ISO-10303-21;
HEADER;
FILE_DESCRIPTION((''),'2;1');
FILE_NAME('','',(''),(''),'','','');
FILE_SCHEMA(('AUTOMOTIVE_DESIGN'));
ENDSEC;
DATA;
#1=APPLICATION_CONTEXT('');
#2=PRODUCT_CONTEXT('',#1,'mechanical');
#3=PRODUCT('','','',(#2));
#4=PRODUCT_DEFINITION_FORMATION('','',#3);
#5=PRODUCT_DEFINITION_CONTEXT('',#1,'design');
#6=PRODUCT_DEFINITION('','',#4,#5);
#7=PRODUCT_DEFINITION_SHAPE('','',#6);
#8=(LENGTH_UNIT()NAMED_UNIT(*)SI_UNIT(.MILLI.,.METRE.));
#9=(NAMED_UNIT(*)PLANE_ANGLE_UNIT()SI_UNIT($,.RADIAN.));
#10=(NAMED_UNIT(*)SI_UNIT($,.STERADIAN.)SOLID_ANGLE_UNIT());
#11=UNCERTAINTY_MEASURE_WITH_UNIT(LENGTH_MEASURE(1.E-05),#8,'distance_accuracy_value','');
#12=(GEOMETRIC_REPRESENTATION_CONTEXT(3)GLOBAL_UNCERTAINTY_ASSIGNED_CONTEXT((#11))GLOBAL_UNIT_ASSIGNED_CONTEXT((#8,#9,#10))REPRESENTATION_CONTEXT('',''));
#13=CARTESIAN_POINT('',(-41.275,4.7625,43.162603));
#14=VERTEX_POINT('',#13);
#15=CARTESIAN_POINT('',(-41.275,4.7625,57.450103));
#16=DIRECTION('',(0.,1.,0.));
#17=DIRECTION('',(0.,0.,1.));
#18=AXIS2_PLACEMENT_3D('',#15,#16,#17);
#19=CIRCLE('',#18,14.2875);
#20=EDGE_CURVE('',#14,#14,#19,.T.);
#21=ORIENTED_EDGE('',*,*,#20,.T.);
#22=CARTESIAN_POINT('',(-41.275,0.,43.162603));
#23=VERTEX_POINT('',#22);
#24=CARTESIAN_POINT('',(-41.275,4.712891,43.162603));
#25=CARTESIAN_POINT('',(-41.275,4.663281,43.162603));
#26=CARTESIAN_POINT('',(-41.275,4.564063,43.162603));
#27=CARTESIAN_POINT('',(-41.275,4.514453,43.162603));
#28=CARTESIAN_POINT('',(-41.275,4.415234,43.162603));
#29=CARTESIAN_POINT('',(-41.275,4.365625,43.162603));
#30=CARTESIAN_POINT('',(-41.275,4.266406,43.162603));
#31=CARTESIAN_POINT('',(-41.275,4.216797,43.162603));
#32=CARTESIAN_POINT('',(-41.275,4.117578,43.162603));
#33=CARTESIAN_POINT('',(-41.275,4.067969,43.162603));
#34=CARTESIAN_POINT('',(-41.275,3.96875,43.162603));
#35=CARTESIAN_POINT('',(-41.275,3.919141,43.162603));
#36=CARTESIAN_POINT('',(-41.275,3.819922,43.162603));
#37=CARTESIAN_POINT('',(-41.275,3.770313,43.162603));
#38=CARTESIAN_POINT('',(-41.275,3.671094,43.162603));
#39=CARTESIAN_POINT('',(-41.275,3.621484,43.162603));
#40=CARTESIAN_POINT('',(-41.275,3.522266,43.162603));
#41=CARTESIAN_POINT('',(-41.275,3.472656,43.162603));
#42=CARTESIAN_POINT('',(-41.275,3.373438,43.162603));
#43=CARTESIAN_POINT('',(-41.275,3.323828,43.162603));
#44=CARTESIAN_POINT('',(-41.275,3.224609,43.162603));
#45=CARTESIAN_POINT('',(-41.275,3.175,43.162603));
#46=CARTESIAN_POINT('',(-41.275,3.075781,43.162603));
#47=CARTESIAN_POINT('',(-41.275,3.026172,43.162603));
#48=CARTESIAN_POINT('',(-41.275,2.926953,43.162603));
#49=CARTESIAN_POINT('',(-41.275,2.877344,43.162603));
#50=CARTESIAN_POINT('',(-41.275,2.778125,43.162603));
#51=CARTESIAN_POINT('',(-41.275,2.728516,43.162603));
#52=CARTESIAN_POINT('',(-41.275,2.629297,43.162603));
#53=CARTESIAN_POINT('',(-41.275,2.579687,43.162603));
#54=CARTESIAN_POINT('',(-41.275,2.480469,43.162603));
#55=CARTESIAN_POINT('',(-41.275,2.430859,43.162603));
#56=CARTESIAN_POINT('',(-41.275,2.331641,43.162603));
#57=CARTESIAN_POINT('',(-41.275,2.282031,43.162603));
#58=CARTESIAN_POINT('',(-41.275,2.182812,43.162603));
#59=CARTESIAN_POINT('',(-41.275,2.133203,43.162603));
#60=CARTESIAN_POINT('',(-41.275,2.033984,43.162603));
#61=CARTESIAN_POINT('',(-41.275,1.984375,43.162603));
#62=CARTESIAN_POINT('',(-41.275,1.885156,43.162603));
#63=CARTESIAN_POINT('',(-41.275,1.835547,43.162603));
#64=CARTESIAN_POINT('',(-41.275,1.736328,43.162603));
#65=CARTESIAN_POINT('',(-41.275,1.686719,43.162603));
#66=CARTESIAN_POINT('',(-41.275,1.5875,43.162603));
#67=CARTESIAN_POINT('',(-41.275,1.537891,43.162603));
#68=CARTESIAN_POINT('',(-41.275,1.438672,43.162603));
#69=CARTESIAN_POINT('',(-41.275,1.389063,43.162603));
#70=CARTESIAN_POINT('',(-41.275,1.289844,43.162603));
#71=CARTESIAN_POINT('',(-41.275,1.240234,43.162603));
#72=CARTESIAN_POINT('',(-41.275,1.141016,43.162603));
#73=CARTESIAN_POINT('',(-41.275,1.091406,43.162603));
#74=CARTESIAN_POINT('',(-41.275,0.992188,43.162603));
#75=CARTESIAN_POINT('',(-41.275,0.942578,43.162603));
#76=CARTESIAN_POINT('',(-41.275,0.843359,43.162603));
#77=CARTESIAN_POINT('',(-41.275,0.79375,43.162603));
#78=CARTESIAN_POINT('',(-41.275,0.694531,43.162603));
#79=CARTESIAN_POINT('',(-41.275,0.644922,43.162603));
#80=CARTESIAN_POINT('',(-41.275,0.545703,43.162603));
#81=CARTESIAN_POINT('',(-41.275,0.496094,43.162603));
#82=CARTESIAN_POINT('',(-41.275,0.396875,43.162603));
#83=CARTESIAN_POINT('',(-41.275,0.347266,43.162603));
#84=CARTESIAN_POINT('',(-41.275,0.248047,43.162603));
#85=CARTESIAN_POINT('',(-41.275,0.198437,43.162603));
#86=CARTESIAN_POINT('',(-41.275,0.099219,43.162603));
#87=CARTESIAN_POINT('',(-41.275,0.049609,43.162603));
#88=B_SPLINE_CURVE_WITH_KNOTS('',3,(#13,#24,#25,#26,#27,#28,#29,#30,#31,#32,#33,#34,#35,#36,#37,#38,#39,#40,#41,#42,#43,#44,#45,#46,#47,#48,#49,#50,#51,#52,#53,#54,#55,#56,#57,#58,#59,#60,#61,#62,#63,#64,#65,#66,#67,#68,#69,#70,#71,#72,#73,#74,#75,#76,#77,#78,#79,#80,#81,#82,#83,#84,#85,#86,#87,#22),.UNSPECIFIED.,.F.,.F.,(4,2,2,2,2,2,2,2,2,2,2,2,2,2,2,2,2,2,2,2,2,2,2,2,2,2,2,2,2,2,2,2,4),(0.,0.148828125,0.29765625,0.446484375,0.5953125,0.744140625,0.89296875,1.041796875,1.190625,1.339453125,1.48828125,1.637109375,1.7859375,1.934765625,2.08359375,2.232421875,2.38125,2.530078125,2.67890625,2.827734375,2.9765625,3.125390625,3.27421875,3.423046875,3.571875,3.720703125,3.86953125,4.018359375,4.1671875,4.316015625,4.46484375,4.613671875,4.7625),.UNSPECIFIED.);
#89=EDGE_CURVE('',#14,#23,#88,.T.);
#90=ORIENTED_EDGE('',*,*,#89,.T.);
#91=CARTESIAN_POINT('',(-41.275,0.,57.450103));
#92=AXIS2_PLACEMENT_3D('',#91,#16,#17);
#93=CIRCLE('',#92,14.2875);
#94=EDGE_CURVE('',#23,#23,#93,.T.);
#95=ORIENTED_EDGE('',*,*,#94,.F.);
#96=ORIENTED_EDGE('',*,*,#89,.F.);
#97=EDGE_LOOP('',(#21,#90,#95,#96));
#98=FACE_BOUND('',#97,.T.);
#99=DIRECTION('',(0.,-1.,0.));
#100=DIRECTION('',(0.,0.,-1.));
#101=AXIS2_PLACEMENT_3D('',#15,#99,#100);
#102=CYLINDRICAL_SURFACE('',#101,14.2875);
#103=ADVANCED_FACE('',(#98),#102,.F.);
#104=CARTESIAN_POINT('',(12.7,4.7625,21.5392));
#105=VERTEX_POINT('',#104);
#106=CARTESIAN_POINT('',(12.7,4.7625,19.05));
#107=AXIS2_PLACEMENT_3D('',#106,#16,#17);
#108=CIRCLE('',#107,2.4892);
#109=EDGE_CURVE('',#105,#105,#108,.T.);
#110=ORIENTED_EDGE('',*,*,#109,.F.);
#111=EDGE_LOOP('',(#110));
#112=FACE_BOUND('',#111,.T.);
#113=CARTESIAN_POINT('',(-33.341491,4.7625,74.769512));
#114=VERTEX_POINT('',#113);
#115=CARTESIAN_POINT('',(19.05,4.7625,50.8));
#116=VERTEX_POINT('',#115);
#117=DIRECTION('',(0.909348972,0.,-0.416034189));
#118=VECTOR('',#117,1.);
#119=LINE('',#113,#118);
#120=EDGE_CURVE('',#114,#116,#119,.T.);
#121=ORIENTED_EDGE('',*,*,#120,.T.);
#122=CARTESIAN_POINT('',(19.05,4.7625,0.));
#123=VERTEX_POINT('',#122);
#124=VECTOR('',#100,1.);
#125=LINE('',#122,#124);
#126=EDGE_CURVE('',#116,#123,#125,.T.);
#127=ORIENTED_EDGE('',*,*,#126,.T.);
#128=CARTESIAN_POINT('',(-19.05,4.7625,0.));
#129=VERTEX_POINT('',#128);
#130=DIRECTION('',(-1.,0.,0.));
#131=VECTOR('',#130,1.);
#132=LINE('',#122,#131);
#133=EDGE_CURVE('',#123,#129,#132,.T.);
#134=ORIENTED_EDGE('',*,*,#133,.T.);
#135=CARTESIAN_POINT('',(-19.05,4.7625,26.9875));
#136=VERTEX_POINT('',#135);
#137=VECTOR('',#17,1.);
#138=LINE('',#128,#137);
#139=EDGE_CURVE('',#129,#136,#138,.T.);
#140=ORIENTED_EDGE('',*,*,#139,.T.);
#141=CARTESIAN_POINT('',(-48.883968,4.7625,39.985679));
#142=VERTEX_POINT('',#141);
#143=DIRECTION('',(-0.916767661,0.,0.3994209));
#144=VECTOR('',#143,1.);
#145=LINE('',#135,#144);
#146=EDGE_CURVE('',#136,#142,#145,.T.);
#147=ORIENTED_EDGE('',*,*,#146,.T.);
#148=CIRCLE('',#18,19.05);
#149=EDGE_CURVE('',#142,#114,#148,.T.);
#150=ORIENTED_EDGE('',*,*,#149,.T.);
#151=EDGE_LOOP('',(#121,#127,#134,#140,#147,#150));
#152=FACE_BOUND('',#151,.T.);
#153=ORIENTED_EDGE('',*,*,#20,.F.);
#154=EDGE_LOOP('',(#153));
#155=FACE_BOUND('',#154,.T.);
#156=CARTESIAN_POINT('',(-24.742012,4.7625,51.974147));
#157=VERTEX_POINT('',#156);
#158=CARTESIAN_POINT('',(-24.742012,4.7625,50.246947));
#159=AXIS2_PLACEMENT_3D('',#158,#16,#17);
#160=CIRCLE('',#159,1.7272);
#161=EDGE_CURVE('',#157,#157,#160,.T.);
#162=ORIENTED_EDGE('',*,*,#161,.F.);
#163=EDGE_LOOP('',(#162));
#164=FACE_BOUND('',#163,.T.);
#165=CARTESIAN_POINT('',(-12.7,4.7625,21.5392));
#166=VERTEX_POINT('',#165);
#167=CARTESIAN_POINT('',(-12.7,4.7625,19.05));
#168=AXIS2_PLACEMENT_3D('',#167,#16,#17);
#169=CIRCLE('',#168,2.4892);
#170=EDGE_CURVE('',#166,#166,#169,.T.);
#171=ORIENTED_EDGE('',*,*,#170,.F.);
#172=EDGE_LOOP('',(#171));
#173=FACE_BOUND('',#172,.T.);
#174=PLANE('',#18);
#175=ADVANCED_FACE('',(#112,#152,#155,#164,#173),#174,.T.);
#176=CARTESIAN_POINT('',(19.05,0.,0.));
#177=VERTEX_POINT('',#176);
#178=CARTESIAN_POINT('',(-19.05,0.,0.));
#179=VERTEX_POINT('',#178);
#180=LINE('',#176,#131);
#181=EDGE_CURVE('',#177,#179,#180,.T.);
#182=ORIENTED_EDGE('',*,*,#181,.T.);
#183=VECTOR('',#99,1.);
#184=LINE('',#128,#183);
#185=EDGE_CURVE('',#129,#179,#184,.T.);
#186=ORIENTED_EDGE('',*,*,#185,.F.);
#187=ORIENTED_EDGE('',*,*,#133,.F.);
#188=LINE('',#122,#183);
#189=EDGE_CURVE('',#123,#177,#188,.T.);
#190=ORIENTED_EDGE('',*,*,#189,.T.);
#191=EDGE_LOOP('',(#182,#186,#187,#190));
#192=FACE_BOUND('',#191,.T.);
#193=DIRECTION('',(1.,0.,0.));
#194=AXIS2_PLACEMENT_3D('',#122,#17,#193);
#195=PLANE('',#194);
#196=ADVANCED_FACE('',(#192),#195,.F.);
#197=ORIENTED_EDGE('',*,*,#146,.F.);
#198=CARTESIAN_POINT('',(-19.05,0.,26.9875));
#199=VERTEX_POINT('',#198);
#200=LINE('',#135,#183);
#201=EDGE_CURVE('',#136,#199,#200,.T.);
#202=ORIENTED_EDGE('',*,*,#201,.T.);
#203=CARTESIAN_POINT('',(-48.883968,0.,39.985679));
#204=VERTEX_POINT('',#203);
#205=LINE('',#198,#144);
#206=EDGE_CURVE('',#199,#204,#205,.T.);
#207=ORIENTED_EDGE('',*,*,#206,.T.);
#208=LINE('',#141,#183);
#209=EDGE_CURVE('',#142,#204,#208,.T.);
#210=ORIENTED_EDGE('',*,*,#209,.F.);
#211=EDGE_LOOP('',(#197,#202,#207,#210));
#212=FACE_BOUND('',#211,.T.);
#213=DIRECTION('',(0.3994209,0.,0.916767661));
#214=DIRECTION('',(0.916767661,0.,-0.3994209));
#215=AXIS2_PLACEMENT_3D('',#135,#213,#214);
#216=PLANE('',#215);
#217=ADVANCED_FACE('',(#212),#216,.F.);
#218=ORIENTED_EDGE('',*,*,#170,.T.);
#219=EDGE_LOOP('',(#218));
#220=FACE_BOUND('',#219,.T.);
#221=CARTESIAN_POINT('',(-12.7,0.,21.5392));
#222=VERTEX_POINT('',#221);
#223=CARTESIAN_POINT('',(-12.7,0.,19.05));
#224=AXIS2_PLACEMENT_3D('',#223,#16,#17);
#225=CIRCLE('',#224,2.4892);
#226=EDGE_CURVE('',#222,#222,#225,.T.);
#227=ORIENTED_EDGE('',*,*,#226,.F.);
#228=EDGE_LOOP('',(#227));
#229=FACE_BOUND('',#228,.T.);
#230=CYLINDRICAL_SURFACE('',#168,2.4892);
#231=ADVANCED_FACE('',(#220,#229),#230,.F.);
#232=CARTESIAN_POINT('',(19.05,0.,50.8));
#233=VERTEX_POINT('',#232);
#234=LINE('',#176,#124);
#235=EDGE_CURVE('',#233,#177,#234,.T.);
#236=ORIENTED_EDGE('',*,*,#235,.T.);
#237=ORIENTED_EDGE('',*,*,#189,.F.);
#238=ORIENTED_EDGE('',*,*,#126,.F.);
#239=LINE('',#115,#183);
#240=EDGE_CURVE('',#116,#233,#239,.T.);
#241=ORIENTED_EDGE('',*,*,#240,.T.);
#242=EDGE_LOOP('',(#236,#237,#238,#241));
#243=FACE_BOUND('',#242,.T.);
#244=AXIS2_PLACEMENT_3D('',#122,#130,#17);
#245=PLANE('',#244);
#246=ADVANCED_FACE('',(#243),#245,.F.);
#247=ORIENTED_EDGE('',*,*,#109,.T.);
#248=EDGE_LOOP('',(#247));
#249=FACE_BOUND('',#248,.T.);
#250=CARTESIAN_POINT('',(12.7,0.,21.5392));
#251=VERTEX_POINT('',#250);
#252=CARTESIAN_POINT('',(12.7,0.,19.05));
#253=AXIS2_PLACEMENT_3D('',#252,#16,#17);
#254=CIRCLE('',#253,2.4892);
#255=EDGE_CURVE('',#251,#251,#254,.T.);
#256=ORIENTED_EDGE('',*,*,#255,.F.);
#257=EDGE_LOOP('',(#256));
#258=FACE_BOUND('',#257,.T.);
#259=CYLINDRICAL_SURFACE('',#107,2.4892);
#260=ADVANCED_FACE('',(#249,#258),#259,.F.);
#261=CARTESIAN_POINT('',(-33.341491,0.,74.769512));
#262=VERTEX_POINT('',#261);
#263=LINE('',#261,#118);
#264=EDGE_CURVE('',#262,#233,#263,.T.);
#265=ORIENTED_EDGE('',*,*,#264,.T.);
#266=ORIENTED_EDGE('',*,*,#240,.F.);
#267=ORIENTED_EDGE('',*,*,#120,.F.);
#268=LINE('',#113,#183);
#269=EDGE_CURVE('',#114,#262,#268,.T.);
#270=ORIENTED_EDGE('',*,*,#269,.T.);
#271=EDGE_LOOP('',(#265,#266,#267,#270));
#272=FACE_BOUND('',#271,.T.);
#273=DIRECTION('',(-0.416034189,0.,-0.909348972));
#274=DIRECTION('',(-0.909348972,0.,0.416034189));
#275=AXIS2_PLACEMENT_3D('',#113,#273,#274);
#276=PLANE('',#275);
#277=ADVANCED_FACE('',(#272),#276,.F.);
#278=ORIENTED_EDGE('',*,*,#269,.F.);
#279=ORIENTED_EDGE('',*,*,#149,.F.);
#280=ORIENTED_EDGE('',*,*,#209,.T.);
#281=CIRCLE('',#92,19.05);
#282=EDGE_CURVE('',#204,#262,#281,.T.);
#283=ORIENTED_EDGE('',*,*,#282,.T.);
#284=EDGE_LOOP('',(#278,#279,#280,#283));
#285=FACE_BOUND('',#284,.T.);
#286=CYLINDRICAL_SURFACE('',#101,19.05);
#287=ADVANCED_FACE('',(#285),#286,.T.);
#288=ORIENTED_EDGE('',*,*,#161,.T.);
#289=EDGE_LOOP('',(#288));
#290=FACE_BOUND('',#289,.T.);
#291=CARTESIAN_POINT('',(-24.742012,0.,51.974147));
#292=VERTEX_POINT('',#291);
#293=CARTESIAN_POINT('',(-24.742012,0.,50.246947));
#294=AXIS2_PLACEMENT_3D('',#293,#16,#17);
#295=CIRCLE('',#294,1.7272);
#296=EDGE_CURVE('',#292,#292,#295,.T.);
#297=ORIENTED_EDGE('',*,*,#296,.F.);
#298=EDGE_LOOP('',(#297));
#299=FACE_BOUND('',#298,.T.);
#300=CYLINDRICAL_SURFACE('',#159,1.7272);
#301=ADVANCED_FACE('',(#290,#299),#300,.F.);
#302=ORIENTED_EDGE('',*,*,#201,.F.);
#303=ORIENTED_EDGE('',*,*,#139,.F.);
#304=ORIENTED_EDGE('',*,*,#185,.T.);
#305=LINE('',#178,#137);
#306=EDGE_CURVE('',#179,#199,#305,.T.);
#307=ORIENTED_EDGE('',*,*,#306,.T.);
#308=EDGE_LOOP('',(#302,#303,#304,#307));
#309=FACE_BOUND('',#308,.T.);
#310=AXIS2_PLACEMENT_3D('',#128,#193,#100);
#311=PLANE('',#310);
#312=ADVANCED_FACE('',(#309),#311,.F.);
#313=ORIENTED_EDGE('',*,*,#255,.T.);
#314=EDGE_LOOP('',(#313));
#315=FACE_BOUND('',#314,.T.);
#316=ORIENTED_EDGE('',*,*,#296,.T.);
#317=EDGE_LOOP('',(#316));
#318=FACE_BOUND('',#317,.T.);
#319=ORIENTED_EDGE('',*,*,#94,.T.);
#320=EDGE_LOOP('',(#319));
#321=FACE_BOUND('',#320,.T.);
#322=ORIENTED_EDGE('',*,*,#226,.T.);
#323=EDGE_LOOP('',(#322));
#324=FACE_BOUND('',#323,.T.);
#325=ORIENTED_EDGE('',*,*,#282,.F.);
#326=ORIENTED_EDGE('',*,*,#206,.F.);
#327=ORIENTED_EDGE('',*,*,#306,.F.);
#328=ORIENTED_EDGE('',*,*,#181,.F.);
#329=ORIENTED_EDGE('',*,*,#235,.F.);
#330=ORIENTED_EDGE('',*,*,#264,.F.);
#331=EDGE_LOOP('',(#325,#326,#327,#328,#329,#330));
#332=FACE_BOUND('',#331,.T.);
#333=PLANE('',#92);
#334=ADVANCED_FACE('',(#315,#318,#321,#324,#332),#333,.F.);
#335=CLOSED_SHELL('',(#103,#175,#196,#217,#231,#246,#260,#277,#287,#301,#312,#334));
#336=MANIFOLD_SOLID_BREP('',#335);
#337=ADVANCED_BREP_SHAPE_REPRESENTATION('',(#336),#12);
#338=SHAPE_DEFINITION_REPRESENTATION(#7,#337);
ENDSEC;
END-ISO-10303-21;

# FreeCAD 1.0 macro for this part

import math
import FreeCAD as App
import Part
import Sketcher
from FreeCAD import Vector
Q = App.Units.Quantity

doc = App.newDocument("Part")
body = doc.addObject("PartDesign::Body", "Body")

sketch1 = body.newObject("Sketcher::SketchObject", "Sketch")
sketch1.AttachmentSupport = (doc.getObject("XZ_Plane"), [""])
sketch1.MapMode = "FlatFace"
sketch1.addGeometry([
    Part.LineSegment(Vector(19, 0, 0), Vector(-19, 0, 0)),
    Part.LineSegment(Vector(-19, 0, 0), Vector(-19, 27, 0)),
    Part.LineSegment(Vector(-19, 27, 0), Vector(-49, 40, 0)),
    Part.ArcOfCircle(Part.Circle(Vector(-41, 57, 0), Vector(0, 0, 1), 19), math.radians(65), math.radians(246)),
    Part.LineSegment(Vector(-33, 75, 0), Vector(19, 51, 0)),
    Part.LineSegment(Vector(19, 51, 0), Vector(19, 0, 0)),
    Part.Circle(Vector(-41, 57, 0), Vector(0, 0, 1), 14),
], False)
sketch1.addConstraint([
    Sketcher.Constraint("Coincident", 0, 2, 1, 1),
    Sketcher.Constraint("Coincident", 1, 2, 2, 1),
    Sketcher.Constraint("Tangent", 2, 2, 3, 2),
    Sketcher.Constraint("Coincident", 3, 1, 4, 1),
    Sketcher.Constraint("Coincident", 4, 2, 5, 1),
    Sketcher.Constraint("Coincident", 5, 2, 0, 1),
    Sketcher.Constraint("Horizontal", 0),
    Sketcher.Constraint("Vertical", 1),
    Sketcher.Constraint("Vertical", 5),
    Sketcher.Constraint("Coincident", 6, 3, 3, 3),
    Sketcher.Constraint("Symmetric", 0, 2, 5, 2, -1, 1),
    Sketcher.Constraint("DistanceY", 5, 2, 5, 1, Q("2 in")),
    Sketcher.Constraint("Radius", 3, Q("0.75 in")),
    Sketcher.Constraint("Diameter", 6, Q("1.125 in")),
    Sketcher.Constraint("DistanceX", 0, 2, 0, 1, Q("1.5 in")),
    Sketcher.Constraint("DistanceY", 1, 1, 1, 2, Q("1.0625 in")),
    Sketcher.Constraint("DistanceX", 3, 3, -1, 1, Q("1.625 in")),
    Sketcher.Constraint("Distance", 2, Q("32.542562 mm")),
    Sketcher.Constraint("DistanceX", 3, 1, -1, 1, Q("33.341491 mm")),
])
pad1 = body.newObject("PartDesign::Pad", "Pad")
pad1.Profile = sketch1
pad1.Length = Q("0.1875 in")
pad1.Reversed = True

sketch2 = body.newObject("Sketcher::SketchObject", "Sketch001")
sketch2.AttachmentSupport = (doc.getObject("XZ_Plane"), [""])
sketch2.MapMode = "FlatFace"
sketch2.AttachmentOffset = App.Placement(Vector(0, 0, -0.1875 * 25.4), App.Rotation())
sketch2.addGeometry(Part.Circle(Vector(-24.7, 50.2, 0), Vector(0, 0, 1), 1.7), False)
sketch2.addConstraint([
    Sketcher.Constraint("Diameter", 0, Q("0.136 in")),
    Sketcher.Constraint("DistanceX", 0, 3, -1, 1, Q("24.742012 mm")),
    Sketcher.Constraint("DistanceY", -1, 1, 0, 3, Q("50.246947 mm")),
])
doc.recompute()
hole = body.newObject("PartDesign::Hole", "Hole")
hole.Profile = sketch2
hole.ThreadType = "None"
hole.Diameter = Q("0.136 in")
hole.DepthType = "ThroughAll"
hole.Reversed = True

sketch3 = body.newObject("Sketcher::SketchObject", "Sketch002")
sketch3.AttachmentSupport = (doc.getObject("XZ_Plane"), [""])
sketch3.MapMode = "FlatFace"
sketch3.AttachmentOffset = App.Placement(Vector(0, 0, -0.1875 * 25.4), App.Rotation())
sketch3.addGeometry([
    Part.Circle(Vector(-12.7, 19.1, 0), Vector(0, 0, 1), 2.5),
    Part.Circle(Vector(12.7, 19.1, 0), Vector(0, 0, 1), 2.5),
], False)
sketch3.addConstraint([
    Sketcher.Constraint("Equal", 0, 1),
    Sketcher.Constraint("Symmetric", 0, 3, 1, 3, -2),
    Sketcher.Constraint("Diameter", 0, Q("0.196 in")),
    Sketcher.Constraint("DistanceX", 0, 3, 1, 3, Q("1 in")),
    Sketcher.Constraint("DistanceY", -1, 1, 0, 3, Q("0.75 in")),
])
doc.recompute()
hole2 = body.newObject("PartDesign::Hole", "Hole001")
hole2.Profile = sketch3
hole2.ThreadType = "None"
hole2.Diameter = Q("0.196 in")
hole2.DepthType = "ThroughAll"
hole2.Reversed = True

doc.recompute()
